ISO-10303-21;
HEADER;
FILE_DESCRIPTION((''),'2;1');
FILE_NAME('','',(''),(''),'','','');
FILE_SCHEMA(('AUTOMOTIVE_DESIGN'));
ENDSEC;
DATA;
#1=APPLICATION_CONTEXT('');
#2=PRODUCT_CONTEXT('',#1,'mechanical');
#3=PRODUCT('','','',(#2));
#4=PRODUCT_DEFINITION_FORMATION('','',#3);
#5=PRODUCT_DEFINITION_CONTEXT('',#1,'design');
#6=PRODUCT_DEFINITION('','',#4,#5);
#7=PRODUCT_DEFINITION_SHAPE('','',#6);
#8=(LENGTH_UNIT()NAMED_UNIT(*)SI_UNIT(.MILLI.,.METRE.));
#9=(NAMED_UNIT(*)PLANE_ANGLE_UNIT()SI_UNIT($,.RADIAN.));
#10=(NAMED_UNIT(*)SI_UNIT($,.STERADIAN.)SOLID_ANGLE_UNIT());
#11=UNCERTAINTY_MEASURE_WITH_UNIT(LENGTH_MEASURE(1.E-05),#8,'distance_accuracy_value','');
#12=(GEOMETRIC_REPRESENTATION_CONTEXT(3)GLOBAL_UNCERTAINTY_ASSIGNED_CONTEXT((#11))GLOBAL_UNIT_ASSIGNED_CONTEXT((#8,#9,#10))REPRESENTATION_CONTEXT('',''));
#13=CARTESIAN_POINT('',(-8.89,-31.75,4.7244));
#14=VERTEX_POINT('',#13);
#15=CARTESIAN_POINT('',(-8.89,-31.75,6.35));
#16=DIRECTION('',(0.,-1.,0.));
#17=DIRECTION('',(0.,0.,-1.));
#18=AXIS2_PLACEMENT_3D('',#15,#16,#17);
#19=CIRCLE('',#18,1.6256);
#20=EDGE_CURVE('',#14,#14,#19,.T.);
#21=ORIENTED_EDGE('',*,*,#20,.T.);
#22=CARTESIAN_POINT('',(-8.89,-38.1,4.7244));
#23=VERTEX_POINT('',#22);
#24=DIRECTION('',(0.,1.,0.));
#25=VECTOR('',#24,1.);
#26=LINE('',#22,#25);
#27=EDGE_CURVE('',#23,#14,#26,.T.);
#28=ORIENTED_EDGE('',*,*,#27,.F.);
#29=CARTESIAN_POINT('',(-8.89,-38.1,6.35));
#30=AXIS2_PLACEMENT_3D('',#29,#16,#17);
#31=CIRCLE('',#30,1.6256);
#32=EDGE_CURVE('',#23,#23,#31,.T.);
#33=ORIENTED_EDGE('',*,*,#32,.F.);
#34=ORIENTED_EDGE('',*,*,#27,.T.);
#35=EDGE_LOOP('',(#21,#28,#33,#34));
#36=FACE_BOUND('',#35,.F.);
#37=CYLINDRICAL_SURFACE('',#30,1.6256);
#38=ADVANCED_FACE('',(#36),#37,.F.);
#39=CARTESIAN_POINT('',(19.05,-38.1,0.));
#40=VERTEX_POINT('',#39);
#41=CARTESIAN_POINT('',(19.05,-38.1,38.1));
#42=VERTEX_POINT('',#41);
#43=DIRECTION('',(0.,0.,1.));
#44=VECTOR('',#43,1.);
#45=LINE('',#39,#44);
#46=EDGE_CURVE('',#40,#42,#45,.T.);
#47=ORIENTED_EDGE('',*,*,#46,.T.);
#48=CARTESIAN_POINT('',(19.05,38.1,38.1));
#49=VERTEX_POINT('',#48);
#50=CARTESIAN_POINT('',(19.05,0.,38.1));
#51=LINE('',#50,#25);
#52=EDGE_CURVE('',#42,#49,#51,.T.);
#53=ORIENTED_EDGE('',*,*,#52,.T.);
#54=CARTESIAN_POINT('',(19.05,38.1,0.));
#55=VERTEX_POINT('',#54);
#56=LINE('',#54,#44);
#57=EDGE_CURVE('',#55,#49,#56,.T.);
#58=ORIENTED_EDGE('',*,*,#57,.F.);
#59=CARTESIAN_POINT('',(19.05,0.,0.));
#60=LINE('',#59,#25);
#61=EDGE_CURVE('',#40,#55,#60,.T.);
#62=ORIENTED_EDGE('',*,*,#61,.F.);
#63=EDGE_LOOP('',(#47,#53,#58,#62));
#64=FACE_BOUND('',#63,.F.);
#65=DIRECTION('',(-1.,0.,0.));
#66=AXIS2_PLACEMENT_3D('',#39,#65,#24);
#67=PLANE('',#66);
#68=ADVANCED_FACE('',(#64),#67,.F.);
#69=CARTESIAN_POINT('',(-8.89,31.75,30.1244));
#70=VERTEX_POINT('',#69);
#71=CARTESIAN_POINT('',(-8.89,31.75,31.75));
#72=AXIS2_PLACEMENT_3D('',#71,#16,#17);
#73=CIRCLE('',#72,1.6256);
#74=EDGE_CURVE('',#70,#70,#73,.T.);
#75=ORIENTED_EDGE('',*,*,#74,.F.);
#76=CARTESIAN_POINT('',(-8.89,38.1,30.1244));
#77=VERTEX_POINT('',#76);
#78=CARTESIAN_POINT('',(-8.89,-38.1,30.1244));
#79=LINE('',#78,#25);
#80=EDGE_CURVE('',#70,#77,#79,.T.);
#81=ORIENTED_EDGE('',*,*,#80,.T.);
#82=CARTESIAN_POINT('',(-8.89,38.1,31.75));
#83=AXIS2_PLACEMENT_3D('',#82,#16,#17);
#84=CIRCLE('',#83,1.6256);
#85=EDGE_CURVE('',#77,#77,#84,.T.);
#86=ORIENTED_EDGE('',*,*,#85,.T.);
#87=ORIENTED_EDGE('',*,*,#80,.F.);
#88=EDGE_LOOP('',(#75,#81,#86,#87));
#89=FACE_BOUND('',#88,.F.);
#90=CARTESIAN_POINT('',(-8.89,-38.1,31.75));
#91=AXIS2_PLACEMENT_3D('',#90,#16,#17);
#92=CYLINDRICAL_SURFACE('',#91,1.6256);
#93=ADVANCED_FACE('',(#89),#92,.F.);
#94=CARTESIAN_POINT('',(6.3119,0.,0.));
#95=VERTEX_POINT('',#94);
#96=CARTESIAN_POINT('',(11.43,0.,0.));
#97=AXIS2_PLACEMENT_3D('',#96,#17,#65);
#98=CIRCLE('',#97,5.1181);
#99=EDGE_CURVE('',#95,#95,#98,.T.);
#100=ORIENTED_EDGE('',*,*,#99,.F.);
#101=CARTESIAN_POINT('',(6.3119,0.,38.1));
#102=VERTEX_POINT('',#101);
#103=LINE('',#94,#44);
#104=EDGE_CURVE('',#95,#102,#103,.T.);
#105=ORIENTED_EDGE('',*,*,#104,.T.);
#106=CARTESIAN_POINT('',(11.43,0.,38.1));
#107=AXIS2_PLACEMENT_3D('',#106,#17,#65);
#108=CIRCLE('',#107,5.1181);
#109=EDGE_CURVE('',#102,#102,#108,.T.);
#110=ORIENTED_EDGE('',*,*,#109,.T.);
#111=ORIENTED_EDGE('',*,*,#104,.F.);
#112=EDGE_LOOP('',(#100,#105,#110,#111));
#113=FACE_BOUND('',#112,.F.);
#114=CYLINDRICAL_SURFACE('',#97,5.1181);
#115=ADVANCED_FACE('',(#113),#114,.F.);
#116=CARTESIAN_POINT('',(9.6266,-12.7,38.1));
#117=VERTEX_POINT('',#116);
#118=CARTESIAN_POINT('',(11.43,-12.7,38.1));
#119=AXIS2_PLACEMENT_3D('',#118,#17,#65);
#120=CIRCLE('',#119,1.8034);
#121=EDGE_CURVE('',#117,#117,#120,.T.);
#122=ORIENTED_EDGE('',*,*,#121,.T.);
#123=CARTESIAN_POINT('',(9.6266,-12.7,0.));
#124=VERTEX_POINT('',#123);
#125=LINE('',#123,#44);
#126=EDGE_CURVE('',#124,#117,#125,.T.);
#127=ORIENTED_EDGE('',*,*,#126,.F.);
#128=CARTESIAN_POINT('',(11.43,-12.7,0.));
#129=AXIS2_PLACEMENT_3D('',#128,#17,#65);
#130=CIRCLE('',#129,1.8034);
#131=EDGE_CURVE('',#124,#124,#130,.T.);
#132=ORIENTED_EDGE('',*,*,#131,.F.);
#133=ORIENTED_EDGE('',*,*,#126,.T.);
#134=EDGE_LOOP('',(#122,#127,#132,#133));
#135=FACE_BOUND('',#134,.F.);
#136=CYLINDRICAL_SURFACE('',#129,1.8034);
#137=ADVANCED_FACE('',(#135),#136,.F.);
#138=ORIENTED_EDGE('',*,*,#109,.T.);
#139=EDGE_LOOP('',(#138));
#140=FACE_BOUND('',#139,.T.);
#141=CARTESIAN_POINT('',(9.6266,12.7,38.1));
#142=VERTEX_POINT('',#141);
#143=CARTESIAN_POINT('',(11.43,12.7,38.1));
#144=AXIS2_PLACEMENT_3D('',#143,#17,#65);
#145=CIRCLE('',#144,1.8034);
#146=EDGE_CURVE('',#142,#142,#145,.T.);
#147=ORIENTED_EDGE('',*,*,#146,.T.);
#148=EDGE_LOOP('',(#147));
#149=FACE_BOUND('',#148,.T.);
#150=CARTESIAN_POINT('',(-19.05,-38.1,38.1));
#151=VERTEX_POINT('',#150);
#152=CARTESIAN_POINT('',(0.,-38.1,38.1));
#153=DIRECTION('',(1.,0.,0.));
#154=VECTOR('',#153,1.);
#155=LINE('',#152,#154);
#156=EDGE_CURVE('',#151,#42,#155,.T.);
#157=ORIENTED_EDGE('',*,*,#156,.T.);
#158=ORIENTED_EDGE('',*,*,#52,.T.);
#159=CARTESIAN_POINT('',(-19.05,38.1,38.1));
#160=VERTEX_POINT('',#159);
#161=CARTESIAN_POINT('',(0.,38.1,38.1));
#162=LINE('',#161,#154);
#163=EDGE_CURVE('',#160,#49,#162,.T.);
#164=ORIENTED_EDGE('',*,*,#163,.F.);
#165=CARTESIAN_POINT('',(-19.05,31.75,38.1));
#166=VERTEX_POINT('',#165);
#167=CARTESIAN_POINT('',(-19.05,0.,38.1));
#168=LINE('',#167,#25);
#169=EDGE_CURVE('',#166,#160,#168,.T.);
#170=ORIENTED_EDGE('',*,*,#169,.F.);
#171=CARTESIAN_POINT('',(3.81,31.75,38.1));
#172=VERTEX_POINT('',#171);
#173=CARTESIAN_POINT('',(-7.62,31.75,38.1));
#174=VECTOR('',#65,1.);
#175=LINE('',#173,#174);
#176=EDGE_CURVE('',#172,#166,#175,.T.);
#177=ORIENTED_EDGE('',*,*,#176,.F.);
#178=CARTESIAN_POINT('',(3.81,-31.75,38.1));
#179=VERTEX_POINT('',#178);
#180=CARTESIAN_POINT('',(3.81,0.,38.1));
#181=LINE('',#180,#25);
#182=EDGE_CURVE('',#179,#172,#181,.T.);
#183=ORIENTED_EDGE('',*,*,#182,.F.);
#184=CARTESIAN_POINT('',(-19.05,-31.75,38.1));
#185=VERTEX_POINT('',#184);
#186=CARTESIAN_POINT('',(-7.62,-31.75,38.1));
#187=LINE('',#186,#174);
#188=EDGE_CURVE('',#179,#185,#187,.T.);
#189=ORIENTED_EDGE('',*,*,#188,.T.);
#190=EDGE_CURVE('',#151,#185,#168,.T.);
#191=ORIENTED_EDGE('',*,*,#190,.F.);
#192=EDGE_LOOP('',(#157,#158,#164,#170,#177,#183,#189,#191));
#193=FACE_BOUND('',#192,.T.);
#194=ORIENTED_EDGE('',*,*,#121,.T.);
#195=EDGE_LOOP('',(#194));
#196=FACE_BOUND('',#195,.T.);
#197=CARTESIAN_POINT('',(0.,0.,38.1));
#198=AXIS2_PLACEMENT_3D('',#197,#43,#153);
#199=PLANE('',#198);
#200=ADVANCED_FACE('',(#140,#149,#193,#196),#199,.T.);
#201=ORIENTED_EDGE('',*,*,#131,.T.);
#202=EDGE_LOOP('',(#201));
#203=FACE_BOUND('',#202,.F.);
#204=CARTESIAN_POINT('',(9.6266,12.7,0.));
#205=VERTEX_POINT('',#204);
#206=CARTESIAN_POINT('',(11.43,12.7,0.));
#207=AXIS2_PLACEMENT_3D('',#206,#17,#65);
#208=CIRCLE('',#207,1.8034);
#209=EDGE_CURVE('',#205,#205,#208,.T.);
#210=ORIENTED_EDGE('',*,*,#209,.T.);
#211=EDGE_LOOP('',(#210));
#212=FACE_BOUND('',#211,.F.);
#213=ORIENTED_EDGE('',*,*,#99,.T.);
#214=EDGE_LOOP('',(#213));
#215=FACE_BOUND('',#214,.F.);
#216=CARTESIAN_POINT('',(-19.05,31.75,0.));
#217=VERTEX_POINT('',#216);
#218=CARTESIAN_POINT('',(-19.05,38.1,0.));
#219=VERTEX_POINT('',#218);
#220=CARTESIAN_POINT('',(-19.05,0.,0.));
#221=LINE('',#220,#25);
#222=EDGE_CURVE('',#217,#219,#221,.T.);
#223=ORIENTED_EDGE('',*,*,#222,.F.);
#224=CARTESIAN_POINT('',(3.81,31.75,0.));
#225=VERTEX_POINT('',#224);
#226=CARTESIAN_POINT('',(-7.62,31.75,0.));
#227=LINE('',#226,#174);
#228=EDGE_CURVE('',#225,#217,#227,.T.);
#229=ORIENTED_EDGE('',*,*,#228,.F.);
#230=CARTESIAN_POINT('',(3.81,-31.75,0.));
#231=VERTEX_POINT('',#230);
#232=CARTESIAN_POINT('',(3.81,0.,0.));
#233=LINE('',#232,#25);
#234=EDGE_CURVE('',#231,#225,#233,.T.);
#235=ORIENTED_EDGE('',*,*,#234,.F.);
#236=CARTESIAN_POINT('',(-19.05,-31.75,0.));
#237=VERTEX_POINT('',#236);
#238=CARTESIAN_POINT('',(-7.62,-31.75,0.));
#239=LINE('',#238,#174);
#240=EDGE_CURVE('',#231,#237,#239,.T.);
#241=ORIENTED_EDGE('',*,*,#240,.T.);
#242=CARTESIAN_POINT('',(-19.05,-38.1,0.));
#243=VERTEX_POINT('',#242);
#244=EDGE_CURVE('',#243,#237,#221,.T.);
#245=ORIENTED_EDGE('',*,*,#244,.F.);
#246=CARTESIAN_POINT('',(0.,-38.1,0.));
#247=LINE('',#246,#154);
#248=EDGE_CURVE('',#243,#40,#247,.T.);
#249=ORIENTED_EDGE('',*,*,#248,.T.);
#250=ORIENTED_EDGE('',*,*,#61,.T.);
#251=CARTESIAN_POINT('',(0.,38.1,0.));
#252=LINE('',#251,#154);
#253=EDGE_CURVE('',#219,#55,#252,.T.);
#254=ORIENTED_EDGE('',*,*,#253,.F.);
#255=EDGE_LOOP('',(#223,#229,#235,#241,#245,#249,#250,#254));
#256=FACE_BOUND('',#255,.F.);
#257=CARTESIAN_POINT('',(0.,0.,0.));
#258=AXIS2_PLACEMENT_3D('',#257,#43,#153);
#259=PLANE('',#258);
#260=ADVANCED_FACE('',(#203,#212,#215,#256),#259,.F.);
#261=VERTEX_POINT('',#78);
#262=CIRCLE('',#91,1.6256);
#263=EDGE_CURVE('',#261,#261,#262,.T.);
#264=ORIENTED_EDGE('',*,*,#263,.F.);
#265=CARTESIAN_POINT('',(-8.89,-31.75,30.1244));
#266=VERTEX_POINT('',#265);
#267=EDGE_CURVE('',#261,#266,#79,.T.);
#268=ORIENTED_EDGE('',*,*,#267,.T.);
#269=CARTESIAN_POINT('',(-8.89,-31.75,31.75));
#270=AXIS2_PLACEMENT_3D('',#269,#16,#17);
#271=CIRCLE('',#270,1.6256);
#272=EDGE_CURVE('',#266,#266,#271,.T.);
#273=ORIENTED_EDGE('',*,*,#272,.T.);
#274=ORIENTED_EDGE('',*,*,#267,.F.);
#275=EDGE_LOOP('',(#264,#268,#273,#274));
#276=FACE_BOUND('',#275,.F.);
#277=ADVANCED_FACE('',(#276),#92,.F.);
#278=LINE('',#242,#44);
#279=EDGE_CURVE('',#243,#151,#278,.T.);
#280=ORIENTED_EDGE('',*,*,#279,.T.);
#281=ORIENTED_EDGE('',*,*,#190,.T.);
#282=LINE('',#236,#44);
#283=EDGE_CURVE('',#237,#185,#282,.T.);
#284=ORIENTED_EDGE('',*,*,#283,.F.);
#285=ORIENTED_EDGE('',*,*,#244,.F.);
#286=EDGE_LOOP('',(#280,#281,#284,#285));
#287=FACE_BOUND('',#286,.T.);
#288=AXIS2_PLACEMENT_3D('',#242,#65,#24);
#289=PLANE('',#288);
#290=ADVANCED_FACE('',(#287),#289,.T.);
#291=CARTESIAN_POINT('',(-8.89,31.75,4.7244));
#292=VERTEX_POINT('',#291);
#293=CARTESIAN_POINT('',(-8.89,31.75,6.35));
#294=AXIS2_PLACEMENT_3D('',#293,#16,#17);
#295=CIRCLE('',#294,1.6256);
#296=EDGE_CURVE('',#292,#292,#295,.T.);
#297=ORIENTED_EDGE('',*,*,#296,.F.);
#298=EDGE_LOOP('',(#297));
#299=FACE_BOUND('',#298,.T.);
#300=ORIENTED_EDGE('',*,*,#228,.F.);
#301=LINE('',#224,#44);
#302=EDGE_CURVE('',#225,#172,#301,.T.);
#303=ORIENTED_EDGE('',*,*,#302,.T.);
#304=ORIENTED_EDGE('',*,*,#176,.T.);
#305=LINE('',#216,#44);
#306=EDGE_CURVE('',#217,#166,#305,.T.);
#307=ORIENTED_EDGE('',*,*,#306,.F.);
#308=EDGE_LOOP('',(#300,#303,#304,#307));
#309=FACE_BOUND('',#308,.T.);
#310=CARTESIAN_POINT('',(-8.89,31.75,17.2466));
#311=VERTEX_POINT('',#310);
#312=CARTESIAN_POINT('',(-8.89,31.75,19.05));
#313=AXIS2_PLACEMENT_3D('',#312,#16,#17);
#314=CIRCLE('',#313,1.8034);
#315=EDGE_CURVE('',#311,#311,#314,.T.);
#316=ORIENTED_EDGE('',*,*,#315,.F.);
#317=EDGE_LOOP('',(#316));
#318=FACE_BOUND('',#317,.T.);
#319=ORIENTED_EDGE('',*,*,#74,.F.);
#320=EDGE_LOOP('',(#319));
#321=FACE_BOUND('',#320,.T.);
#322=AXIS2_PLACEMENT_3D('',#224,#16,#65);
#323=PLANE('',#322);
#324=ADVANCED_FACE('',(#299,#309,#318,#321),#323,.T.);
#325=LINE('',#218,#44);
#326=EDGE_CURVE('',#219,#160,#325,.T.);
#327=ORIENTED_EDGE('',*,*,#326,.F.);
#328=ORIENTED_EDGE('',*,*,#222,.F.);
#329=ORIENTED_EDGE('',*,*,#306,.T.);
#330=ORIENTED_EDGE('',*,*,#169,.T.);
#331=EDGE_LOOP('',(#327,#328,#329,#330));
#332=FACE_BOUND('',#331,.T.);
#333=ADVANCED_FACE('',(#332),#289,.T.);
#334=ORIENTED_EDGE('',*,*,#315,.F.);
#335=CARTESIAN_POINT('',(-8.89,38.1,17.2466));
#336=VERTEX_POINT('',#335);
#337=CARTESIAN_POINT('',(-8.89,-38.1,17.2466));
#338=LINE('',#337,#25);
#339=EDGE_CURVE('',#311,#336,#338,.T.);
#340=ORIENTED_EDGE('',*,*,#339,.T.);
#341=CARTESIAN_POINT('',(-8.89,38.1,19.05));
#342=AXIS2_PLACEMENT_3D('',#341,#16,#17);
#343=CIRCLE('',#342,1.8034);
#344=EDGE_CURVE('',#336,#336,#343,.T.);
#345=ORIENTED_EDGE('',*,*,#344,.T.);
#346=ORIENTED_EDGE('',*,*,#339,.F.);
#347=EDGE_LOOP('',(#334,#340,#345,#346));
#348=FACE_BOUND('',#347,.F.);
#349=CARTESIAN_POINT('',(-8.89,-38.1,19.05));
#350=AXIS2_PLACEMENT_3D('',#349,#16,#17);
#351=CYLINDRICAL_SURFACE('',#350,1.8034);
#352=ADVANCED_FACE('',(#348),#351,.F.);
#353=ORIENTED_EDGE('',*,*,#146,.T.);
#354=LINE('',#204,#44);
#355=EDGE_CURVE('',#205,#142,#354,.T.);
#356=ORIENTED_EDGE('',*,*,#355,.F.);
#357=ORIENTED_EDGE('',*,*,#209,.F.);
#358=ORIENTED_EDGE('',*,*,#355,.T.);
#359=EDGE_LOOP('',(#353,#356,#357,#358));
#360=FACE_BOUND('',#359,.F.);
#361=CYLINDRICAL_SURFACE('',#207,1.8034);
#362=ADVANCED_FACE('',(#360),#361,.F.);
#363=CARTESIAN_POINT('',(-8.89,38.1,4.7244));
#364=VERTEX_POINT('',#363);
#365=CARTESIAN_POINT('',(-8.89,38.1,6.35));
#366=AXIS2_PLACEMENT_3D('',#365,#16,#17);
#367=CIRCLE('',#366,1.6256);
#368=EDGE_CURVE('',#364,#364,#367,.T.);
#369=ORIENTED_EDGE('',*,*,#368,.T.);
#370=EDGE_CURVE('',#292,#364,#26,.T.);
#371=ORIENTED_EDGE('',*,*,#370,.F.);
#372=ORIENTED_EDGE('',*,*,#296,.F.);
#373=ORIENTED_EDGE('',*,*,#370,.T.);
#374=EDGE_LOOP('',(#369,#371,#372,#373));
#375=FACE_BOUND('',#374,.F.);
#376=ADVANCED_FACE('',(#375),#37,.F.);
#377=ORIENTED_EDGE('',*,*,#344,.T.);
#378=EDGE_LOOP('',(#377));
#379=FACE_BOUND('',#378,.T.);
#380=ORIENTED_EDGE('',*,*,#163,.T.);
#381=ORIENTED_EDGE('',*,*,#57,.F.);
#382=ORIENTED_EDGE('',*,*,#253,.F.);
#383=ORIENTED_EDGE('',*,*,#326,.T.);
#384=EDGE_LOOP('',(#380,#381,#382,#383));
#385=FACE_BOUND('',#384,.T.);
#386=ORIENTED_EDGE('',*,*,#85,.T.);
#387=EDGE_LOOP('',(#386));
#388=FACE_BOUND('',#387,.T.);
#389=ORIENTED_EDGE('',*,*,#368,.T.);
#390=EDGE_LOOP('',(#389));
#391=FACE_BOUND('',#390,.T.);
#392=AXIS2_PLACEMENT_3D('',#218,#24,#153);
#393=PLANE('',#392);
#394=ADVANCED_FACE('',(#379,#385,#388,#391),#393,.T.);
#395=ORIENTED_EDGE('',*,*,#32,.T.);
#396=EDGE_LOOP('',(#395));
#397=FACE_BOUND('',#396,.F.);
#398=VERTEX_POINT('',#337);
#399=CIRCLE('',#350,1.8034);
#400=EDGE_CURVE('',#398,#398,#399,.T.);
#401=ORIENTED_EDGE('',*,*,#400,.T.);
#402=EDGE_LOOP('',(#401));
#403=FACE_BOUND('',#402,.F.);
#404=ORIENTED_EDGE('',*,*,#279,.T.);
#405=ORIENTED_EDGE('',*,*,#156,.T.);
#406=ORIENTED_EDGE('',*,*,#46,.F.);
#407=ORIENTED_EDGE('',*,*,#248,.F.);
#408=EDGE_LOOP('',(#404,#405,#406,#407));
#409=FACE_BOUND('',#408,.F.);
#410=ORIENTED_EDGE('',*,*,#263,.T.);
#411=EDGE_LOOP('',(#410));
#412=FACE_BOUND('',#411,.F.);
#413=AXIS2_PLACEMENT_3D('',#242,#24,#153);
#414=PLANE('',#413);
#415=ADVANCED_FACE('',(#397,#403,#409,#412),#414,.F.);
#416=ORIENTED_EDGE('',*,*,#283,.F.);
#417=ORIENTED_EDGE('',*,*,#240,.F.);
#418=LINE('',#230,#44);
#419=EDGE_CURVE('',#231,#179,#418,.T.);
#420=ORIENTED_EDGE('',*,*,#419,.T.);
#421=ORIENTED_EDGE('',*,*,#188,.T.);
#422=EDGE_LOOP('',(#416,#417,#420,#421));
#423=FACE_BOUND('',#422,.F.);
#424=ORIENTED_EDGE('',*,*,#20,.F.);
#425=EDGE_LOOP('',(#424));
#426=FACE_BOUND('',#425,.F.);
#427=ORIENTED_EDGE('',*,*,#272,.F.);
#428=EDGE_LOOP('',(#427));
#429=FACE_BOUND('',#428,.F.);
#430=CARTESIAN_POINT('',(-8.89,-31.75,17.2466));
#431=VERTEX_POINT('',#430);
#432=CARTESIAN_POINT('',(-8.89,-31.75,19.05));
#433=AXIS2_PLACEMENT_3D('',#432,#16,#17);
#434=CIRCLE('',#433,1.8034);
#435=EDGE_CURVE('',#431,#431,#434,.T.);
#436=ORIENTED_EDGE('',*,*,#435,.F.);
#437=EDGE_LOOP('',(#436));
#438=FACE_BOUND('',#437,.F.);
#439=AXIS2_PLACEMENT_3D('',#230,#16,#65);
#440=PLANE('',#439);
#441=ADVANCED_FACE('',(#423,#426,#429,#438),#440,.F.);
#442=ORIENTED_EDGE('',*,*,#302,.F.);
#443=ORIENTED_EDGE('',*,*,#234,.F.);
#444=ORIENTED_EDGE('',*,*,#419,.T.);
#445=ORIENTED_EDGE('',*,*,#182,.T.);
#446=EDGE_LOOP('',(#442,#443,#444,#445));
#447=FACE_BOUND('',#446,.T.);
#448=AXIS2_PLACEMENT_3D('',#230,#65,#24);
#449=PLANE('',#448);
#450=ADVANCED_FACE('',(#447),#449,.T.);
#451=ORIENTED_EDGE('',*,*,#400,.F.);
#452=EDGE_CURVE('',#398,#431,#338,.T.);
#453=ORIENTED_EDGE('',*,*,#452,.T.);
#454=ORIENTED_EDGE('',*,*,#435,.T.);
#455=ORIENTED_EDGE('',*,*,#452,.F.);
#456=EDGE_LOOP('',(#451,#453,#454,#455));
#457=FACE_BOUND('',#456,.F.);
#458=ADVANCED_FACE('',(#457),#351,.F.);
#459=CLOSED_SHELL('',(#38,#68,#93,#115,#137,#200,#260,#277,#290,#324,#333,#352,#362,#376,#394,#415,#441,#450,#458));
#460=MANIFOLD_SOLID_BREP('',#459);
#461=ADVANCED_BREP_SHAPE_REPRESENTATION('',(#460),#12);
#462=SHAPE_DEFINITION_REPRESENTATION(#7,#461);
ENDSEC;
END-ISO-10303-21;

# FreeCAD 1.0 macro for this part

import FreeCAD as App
import Part
import Sketcher

V = App.Vector
Q = App.Units.Quantity

doc = App.newDocument("Part")
body = doc.addObject("PartDesign::Body", "Body")

# Sketch on XY plane
sketch1 = body.newObject("Sketcher::SketchObject", "Sketch")
sketch1.AttachmentSupport = (doc.getObject("XY_Plane"), [""])
sketch1.MapMode = "FlatFace"
sketch1.addGeometry([
    Part.LineSegment(V(-19, 38, 0), V(-19, -38, 0)),
    Part.LineSegment(V(-19, -38, 0), V(19, -38, 0)),
    Part.LineSegment(V(19, -38, 0), V(19, 38, 0)),
    Part.LineSegment(V(19, 38, 0), V(-19, 38, 0)),
], False)
sketch1.addConstraint([
    Sketcher.Constraint("Coincident", 0, 2, 1, 1),
    Sketcher.Constraint("Coincident", 1, 2, 2, 1),
    Sketcher.Constraint("Coincident", 2, 2, 3, 1),
    Sketcher.Constraint("Coincident", 3, 2, 0, 1),
    Sketcher.Constraint("Vertical", 0),
    Sketcher.Constraint("Horizontal", 1),
    Sketcher.Constraint("Vertical", 2),
    Sketcher.Constraint("Horizontal", 3),
    Sketcher.Constraint("Symmetric", 0, 2, 2, 2, -1, 1),
    Sketcher.Constraint("DistanceY", 0, 2, 0, 1, Q("3 in")),
    Sketcher.Constraint("DistanceX", 1, 1, 1, 2, Q("1.5 in")),
])
pad1 = body.newObject("PartDesign::Pad", "Pad")
pad1.Profile = sketch1
pad1.Length = Q("1.5 in")

# Sketch on XY plane
sketch2 = body.newObject("Sketcher::SketchObject", "Sketch001")
sketch2.AttachmentSupport = (doc.getObject("XY_Plane"), [""])
sketch2.MapMode = "FlatFace"
sketch2.addGeometry([
    Part.LineSegment(V(4, 32, 0), V(4, -32, 0)),
    Part.LineSegment(V(4, -32, 0), V(-19, -32, 0)),
    Part.LineSegment(V(-19, -32, 0), V(-19, 32, 0)),
    Part.LineSegment(V(-19, 32, 0), V(4, 32, 0)),
], False)
sketch2.addConstraint([
    Sketcher.Constraint("Coincident", 0, 2, 1, 1),
    Sketcher.Constraint("Coincident", 1, 2, 2, 1),
    Sketcher.Constraint("Coincident", 2, 2, 3, 1),
    Sketcher.Constraint("Coincident", 3, 2, 0, 1),
    Sketcher.Constraint("Vertical", 0),
    Sketcher.Constraint("Horizontal", 1),
    Sketcher.Constraint("Vertical", 2),
    Sketcher.Constraint("Horizontal", 3),
    Sketcher.Constraint("DistanceX", 1, 2, 1, 1, Q("0.9 in")),
    Sketcher.Constraint("DistanceY", 0, 2, 0, 1, Q("2.5 in")),
    Sketcher.Constraint("DistanceX", -1, 1, 0, 2, Q("0.15 in")),
    Sketcher.Constraint("DistanceY", 0, 2, -1, 1, Q("1.25 in")),
])
pocket1 = body.newObject("PartDesign::Pocket", "Pocket")
pocket1.Profile = sketch2
pocket1.Length = Q("1.5 in")
pocket1.Reversed = True

# Sketch on XY plane
sketch3 = body.newObject("Sketcher::SketchObject", "Sketch002")
sketch3.AttachmentSupport = (doc.getObject("XY_Plane"), [""])
sketch3.MapMode = "FlatFace"
sketch3.addGeometry([
    Part.Circle(V(11.4, 0, 0), V(0, 0, 1), 5.1),
    Part.Circle(V(11.4, -12.7, 0), V(0, 0, 1), 1.8),
    Part.Circle(V(11.4, 12.7, 0), V(0, 0, 1), 1.8),
], False)
sketch3.addConstraint([
    Sketcher.Constraint("Equal", 1, 2),
    Sketcher.Constraint("Symmetric", 1, 3, 2, 3, -1),
    Sketcher.Constraint("PointOnObject", 0, 3, -1),
    Sketcher.Constraint("Vertical", 0, 3, 1, 3),
    Sketcher.Constraint("Diameter", 0, Q("0.403 in")),
    Sketcher.Constraint("Diameter", 1, Q("0.142 in")),
    Sketcher.Constraint("DistanceY", 1, 3, 2, 3, Q("1 in")),
    Sketcher.Constraint("DistanceX", -1, 1, 0, 3, Q("0.45 in")),
])
pocket2 = body.newObject("PartDesign::Pocket", "Pocket001")
pocket2.Profile = sketch3
pocket2.Length = Q("1.5 in")
pocket2.Reversed = True

# Sketch on XZ plane
sketch4 = body.newObject("Sketcher::SketchObject", "Sketch003")
sketch4.AttachmentSupport = (doc.getObject("XZ_Plane"), [""])
sketch4.MapMode = "FlatFace"
sketch4.AttachmentOffset = App.Placement(V(0, 0, 1.5 * 25.4), App.Rotation())
sketch4.addGeometry([
    Part.Circle(V(-8.9, 6.3, 0), V(0, 0, 1), 1.6),
    Part.Circle(V(-8.9, 19.1, 0), V(0, 0, 1), 1.8),
    Part.Circle(V(-8.9, 31.8, 0), V(0, 0, 1), 1.6),
], False)
sketch4.addConstraint([
    Sketcher.Constraint("Equal", 0, 2),
    Sketcher.Constraint("Vertical", 0, 3, 1, 3),
    Sketcher.Constraint("Vertical", 1, 3, 2, 3),
    Sketcher.Constraint("Diameter", 0, Q("0.128 in")),
    Sketcher.Constraint("Diameter", 1, Q("0.142 in")),
    Sketcher.Constraint("DistanceY", 0, 3, 2, 3, Q("1 in")),
    Sketcher.Constraint("DistanceY", 0, 3, 1, 3, Q("0.5 in")),
    Sketcher.Constraint("DistanceX", 0, 3, -1, 1, Q("0.35 in")),
    Sketcher.Constraint("DistanceY", -1, 1, 0, 3, Q("0.25 in")),
])
pocket3 = body.newObject("PartDesign::Pocket", "Pocket002")
pocket3.Profile = sketch4
pocket3.Length = Q("3 in")

doc.recompute()
